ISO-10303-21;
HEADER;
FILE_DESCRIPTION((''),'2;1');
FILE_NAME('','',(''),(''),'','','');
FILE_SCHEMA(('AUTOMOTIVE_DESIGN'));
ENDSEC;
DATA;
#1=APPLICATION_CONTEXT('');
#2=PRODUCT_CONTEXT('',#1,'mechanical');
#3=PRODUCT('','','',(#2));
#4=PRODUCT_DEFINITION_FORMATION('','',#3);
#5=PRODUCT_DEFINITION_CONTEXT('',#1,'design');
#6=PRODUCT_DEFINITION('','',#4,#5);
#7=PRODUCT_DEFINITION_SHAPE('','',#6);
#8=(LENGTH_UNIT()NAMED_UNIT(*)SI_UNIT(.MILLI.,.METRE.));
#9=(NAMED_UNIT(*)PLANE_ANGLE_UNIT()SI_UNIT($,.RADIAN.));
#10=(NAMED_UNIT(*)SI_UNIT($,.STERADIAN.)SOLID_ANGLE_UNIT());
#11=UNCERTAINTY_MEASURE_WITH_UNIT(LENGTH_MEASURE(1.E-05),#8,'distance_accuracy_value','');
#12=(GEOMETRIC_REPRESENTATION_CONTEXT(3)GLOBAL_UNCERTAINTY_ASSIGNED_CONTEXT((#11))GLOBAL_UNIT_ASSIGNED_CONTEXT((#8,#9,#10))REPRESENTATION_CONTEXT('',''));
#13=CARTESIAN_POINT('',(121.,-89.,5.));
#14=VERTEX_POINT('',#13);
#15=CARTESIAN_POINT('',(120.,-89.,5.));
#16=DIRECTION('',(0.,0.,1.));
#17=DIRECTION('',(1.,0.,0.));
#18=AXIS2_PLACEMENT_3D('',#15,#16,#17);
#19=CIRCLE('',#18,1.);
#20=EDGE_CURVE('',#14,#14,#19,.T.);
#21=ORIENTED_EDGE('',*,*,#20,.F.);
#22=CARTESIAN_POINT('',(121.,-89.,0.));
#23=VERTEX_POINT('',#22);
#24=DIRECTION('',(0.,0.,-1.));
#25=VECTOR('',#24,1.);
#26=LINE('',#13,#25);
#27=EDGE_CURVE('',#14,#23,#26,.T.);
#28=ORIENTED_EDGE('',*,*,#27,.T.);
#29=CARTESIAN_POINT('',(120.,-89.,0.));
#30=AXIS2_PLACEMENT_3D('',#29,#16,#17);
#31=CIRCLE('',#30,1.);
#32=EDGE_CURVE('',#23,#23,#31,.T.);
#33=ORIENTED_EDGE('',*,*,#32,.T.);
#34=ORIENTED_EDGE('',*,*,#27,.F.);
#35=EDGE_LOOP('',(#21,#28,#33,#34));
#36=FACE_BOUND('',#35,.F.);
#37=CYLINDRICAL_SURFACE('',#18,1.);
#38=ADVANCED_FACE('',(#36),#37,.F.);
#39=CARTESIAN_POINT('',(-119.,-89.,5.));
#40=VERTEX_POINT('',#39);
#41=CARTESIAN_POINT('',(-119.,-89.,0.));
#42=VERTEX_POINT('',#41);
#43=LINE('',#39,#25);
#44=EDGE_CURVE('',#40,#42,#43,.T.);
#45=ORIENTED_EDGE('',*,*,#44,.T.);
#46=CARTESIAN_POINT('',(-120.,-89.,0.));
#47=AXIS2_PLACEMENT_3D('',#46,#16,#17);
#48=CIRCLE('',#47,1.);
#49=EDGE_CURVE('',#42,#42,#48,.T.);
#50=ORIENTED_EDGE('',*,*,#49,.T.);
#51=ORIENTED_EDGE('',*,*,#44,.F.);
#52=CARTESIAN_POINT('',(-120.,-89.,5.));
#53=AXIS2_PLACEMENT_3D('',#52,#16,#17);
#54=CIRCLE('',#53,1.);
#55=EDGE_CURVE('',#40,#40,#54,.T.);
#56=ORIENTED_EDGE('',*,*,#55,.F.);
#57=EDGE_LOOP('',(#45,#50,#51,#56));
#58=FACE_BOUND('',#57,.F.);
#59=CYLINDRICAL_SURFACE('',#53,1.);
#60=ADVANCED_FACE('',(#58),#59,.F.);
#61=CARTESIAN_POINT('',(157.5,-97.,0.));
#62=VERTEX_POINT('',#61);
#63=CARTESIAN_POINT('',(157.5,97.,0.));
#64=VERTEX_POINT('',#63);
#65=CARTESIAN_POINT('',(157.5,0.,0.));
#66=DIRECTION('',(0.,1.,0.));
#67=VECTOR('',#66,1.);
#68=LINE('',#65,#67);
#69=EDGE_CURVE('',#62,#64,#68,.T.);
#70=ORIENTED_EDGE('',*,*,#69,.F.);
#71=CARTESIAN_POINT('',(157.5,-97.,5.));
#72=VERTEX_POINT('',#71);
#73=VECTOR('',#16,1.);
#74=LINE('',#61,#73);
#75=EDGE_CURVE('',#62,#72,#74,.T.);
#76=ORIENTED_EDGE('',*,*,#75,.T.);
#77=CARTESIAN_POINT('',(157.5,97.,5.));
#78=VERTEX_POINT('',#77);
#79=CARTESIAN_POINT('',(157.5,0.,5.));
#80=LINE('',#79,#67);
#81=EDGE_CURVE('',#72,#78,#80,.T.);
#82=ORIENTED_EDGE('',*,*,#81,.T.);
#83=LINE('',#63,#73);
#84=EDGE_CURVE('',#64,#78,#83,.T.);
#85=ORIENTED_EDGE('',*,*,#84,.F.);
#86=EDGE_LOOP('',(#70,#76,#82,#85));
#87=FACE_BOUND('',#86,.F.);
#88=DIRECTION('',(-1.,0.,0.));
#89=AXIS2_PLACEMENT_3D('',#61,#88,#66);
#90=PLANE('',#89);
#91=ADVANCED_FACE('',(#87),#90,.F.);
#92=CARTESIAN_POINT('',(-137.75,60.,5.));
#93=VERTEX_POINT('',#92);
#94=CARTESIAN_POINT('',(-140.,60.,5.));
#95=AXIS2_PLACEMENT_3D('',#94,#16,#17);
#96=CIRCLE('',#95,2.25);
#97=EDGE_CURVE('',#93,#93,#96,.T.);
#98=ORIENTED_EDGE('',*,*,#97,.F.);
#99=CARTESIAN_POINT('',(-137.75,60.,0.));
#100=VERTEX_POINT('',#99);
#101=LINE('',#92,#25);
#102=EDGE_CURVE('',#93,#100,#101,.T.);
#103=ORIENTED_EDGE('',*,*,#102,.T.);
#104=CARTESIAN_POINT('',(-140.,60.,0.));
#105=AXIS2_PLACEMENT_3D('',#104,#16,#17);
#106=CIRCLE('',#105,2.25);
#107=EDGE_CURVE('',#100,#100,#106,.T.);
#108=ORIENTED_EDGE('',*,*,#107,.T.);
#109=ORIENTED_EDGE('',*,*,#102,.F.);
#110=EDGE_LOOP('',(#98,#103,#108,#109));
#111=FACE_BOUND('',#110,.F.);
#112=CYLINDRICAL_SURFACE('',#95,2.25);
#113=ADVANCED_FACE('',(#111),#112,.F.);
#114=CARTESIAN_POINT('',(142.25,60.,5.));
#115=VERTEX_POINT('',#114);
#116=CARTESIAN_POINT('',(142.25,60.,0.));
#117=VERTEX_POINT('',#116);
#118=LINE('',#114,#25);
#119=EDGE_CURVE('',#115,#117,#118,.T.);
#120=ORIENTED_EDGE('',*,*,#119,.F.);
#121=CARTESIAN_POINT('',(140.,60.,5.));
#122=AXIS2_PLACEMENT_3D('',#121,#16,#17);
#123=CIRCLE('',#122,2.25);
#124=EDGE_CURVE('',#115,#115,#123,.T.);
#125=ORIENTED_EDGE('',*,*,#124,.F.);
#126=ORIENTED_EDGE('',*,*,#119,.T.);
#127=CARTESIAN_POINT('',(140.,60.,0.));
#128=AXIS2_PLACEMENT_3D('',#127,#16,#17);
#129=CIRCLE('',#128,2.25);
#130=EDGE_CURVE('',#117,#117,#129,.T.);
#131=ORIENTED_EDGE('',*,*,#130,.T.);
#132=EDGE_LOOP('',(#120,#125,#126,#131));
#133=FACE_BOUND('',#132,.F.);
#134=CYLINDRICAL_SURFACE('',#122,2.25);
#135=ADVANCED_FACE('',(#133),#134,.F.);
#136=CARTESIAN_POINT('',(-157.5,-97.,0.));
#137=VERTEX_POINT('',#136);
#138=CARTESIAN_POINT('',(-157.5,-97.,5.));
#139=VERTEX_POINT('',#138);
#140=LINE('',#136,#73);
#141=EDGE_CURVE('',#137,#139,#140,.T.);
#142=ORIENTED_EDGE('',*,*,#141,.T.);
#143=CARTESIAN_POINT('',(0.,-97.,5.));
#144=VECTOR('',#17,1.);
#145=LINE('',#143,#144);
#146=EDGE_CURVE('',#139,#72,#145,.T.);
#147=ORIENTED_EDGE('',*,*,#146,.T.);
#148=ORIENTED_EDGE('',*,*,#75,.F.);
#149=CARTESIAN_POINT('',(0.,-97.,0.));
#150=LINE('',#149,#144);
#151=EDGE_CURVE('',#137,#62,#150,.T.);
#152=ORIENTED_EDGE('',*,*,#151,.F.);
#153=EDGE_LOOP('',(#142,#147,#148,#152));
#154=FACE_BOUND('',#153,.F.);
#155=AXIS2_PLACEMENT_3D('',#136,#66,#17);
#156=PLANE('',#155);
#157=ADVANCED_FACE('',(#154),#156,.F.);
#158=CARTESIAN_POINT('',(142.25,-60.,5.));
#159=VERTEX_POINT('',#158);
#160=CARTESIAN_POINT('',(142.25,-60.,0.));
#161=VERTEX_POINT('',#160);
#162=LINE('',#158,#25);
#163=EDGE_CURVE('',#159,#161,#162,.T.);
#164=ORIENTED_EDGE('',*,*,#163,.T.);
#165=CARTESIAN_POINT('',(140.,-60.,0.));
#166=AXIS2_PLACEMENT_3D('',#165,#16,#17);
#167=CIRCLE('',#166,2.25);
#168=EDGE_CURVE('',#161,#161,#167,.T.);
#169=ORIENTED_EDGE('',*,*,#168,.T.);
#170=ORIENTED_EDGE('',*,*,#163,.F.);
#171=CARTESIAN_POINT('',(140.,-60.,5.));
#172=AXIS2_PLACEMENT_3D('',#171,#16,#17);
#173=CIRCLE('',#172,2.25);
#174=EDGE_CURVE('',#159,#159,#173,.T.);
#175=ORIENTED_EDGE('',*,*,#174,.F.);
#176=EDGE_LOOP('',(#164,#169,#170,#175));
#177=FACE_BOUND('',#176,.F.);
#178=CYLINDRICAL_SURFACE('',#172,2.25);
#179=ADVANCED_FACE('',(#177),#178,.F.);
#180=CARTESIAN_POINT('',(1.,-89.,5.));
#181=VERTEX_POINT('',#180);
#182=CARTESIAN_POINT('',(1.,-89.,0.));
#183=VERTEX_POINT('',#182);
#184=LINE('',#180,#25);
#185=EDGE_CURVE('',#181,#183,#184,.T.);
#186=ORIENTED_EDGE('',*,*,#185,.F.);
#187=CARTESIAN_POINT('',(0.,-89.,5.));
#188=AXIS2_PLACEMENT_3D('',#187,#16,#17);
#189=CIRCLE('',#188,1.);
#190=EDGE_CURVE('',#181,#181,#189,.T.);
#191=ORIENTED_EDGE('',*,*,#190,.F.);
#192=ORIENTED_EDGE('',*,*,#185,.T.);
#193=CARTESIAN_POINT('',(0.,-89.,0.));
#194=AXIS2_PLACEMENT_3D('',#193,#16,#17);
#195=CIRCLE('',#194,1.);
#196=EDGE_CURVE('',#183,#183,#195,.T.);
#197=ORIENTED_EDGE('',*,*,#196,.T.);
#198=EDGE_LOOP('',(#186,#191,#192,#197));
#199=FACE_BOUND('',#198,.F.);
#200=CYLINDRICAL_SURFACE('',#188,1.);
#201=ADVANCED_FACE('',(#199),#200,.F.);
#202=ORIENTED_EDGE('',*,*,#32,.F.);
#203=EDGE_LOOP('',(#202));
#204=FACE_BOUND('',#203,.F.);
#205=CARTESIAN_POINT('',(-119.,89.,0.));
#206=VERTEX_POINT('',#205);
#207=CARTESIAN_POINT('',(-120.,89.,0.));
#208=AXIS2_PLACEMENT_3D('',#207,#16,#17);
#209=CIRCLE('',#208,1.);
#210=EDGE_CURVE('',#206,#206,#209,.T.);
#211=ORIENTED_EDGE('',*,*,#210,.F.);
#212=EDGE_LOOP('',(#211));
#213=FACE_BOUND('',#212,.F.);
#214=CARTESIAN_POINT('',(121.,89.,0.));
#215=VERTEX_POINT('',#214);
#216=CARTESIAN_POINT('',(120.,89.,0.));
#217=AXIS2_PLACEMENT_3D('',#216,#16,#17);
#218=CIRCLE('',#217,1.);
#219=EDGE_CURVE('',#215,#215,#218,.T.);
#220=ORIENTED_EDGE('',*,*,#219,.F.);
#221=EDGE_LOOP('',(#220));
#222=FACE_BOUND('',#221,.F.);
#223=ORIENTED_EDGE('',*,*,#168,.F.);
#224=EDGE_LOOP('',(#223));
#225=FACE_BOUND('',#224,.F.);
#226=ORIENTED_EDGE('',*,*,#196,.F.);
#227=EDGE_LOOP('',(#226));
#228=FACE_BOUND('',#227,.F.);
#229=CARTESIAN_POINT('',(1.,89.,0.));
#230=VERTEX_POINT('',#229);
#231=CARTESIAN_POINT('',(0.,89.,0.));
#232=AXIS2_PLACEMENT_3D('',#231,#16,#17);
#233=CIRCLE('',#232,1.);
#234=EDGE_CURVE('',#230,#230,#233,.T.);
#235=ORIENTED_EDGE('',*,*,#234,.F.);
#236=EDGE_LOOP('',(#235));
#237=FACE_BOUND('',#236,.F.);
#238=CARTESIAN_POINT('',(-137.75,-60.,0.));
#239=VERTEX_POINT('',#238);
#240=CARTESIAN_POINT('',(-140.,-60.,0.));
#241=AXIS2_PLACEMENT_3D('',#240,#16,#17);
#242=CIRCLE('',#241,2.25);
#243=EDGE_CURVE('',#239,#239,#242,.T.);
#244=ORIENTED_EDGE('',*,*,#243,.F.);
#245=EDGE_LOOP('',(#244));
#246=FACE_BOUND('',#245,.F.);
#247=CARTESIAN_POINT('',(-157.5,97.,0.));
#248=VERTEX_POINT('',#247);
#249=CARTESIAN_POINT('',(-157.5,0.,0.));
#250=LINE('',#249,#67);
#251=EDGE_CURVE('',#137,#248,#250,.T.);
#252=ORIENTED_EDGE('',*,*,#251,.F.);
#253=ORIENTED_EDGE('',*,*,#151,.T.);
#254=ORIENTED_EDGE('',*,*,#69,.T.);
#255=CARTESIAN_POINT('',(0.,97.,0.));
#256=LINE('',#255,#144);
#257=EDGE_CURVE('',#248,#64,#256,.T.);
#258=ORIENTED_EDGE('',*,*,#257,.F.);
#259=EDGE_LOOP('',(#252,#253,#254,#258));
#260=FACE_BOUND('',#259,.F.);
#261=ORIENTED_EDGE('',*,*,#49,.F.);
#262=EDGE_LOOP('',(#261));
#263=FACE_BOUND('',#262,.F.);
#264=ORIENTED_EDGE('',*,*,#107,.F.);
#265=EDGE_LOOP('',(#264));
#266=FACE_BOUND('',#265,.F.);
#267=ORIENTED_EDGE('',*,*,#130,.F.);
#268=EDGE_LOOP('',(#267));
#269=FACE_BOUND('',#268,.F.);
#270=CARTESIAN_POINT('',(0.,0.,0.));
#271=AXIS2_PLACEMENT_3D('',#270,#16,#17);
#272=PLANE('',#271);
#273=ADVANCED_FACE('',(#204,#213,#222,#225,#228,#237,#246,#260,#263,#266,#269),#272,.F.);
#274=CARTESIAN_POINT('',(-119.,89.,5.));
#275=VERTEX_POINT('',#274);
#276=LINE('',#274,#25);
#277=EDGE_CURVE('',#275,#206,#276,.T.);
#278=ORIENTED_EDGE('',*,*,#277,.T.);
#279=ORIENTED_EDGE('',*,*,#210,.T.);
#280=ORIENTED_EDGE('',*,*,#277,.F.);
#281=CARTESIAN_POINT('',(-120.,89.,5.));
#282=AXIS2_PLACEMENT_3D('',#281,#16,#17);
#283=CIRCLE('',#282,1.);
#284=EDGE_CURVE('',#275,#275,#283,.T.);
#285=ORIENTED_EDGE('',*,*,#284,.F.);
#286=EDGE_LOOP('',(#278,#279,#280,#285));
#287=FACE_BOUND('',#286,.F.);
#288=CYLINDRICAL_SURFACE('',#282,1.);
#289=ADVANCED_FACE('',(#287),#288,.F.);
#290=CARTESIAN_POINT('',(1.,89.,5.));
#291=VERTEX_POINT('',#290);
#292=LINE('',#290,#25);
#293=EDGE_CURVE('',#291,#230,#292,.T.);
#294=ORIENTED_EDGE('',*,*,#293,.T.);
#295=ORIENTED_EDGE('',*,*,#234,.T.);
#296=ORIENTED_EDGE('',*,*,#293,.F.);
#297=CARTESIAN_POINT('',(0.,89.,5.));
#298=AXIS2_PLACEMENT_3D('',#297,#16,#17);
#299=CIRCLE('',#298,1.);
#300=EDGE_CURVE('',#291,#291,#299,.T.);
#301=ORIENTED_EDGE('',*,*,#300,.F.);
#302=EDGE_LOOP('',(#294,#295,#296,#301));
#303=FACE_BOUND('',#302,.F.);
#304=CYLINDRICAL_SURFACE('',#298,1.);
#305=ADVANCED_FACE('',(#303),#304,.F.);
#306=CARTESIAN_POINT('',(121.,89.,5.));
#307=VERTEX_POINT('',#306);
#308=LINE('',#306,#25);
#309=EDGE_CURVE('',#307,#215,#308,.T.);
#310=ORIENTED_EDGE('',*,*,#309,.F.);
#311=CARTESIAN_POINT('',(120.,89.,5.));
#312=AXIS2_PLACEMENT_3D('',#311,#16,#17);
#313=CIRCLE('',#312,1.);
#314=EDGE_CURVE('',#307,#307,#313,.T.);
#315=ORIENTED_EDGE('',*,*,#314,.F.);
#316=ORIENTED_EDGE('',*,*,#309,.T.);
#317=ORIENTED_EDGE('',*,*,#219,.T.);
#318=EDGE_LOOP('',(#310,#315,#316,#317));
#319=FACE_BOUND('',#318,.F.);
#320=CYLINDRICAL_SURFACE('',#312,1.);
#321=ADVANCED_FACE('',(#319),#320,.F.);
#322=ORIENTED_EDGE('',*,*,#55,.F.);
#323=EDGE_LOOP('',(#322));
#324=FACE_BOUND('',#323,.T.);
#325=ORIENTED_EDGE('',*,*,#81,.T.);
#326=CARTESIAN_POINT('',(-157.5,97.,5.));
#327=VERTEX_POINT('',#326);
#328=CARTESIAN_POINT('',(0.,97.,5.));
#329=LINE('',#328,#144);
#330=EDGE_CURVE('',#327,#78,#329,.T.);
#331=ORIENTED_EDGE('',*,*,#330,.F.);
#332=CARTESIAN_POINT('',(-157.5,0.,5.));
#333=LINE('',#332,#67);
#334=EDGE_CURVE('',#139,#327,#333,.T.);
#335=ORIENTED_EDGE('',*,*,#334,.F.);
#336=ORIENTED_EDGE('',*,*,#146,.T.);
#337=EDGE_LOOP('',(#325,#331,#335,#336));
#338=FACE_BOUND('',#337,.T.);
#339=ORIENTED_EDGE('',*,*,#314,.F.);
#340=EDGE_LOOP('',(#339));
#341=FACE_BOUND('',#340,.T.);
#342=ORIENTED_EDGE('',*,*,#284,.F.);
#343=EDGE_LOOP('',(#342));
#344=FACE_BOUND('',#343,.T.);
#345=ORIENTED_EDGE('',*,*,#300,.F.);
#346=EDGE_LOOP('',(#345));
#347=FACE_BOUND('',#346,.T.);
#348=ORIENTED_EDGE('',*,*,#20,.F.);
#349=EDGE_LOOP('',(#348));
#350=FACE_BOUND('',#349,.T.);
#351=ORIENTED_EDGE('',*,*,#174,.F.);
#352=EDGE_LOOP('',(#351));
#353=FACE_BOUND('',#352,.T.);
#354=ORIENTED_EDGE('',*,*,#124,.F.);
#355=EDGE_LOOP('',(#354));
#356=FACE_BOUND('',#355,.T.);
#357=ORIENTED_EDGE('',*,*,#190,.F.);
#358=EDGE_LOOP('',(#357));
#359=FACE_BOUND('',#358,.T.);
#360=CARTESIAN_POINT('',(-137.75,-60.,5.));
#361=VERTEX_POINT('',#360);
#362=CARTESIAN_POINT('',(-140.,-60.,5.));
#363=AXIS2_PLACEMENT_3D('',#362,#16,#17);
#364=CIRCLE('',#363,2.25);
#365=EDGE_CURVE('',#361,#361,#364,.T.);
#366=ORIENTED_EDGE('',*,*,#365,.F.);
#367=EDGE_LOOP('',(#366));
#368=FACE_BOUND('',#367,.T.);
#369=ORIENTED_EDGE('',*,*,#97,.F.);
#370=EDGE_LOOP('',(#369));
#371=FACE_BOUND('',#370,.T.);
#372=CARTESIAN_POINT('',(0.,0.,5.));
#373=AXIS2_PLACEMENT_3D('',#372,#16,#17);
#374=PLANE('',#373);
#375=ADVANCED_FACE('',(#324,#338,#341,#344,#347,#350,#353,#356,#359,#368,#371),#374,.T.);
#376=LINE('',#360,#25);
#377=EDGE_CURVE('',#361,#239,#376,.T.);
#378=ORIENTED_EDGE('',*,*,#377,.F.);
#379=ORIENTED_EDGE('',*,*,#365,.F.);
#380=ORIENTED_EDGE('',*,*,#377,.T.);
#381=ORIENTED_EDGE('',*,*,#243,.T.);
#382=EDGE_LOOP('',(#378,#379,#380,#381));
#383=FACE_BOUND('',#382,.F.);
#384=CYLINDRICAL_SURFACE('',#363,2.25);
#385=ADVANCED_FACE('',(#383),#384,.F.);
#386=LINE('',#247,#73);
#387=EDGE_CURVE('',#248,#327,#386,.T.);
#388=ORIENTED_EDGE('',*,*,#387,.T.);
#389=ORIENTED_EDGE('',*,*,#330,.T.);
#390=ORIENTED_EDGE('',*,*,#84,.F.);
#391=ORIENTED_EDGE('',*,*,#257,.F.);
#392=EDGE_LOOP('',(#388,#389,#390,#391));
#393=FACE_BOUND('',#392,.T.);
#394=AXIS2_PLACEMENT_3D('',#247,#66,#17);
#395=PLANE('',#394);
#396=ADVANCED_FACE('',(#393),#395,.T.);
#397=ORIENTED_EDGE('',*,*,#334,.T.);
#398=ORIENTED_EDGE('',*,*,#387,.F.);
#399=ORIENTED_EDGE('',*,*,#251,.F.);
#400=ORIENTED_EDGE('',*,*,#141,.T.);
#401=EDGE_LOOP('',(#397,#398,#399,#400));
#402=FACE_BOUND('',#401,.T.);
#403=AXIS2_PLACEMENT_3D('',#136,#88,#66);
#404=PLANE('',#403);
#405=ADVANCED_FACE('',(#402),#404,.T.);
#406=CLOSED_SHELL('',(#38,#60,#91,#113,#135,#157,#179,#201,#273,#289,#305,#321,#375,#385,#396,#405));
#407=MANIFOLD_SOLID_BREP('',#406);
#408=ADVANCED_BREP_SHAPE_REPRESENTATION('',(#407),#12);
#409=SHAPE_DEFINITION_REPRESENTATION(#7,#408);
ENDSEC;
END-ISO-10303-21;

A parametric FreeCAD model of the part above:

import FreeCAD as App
import Part
import Sketcher
Q = App.Units.Quantity

doc = App.newDocument("Part")
body = doc.addObject("PartDesign::Body", "Body")

# Sketch on XY plane
sketch1 = body.newObject("Sketcher::SketchObject", "Sketch")
sketch1.AttachmentSupport = (doc.getObject("XY_Plane"), [""])
sketch1.MapMode = "FlatFace"
sketch1.addGeometry(Part.LineSegment(App.Vector(-158, 97, 0), App.Vector(-158, -97, 0)), False)
sketch1.addGeometry(Part.LineSegment(App.Vector(-158, -97, 0), App.Vector(158, -97, 0)), False)
sketch1.addGeometry(Part.LineSegment(App.Vector(158, -97, 0), App.Vector(158, 97, 0)), False)
sketch1.addGeometry(Part.LineSegment(App.Vector(158, 97, 0), App.Vector(-158, 97, 0)), False)
sketch1.addConstraint(Sketcher.Constraint("Coincident", 0, 2, 1, 1))
sketch1.addConstraint(Sketcher.Constraint("Coincident", 1, 2, 2, 1))
sketch1.addConstraint(Sketcher.Constraint("Coincident", 2, 2, 3, 1))
sketch1.addConstraint(Sketcher.Constraint("Coincident", 3, 2, 0, 1))
sketch1.addConstraint(Sketcher.Constraint("Vertical", 0))
sketch1.addConstraint(Sketcher.Constraint("Horizontal", 1))
sketch1.addConstraint(Sketcher.Constraint("Vertical", 2))
sketch1.addConstraint(Sketcher.Constraint("Horizontal", 3))
sketch1.addConstraint(Sketcher.Constraint("Symmetric", 0, 2, 2, 2, -1, 1))
sketch1.addConstraint(Sketcher.Constraint("DistanceX", 1, 1, 1, 2, Q("315 mm")))
sketch1.addConstraint(Sketcher.Constraint("DistanceY", 0, 2, 0, 1, Q("194 mm")))
pad1 = body.newObject("PartDesign::Pad", "Pad")
pad1.Profile = sketch1
pad1.Length = 5

# Sketch on XY plane
sketch2 = body.newObject("Sketcher::SketchObject", "Sketch001")
sketch2.AttachmentSupport = (doc.getObject("XY_Plane"), [""])
sketch2.MapMode = "FlatFace"
sketch2.AttachmentOffset = App.Placement(App.Vector(0, 0, 5), App.Rotation())
sketch2.addGeometry(Part.Circle(App.Vector(-120, 89, 0), App.Vector(0, 0, 1), 1), False)
sketch2.addGeometry(Part.Circle(App.Vector(0, 89, 0), App.Vector(0, 0, 1), 1), False)
sketch2.addGeometry(Part.Circle(App.Vector(120, 89, 0), App.Vector(0, 0, 1), 1), False)
sketch2.addGeometry(Part.Circle(App.Vector(-120, -89, 0), App.Vector(0, 0, 1), 1), False)
sketch2.addGeometry(Part.Circle(App.Vector(0, -89, 0), App.Vector(0, 0, 1), 1), False)
sketch2.addGeometry(Part.Circle(App.Vector(120, -89, 0), App.Vector(0, 0, 1), 1), False)
sketch2.addConstraint(Sketcher.Constraint("Equal", 0, 1))
sketch2.addConstraint(Sketcher.Constraint("Equal", 1, 2))
sketch2.addConstraint(Sketcher.Constraint("Equal", 2, 3))
sketch2.addConstraint(Sketcher.Constraint("Equal", 3, 4))
sketch2.addConstraint(Sketcher.Constraint("Equal", 4, 5))
sketch2.addConstraint(Sketcher.Constraint("Symmetric", 2, 3, 3, 3, -1, 1))
sketch2.addConstraint(Sketcher.Constraint("Symmetric", 1, 3, 4, 3, -1, 1))
sketch2.addConstraint(Sketcher.Constraint("Symmetric", 0, 3, 5, 3, -1, 1))
sketch2.addConstraint(Sketcher.Constraint("Symmetric", 0, 3, 2, 3, -2))
sketch2.addConstraint(Sketcher.Constraint("PointOnObject", 1, 3, -2))
sketch2.addConstraint(Sketcher.Constraint("Horizontal", 0, 3, 1, 3))
sketch2.addConstraint(Sketcher.Constraint("Diameter", 0, Q("2 mm")))
sketch2.addConstraint(Sketcher.Constraint("DistanceX", 0, 3, -1, 1, Q("120 mm")))
sketch2.addConstraint(Sketcher.Constraint("DistanceY", -1, 1, 0, 3, Q("89 mm")))
pocket1 = body.newObject("PartDesign::Pocket", "Pocket")
pocket1.Profile = sketch2
pocket1.Type = "ThroughAll"

# Sketch on XY plane
sketch3 = body.newObject("Sketcher::SketchObject", "Sketch002")
sketch3.AttachmentSupport = (doc.getObject("XY_Plane"), [""])
sketch3.MapMode = "FlatFace"
sketch3.AttachmentOffset = App.Placement(App.Vector(0, 0, 5), App.Rotation())
sketch3.addGeometry(Part.Circle(App.Vector(-140, 60, 0), App.Vector(0, 0, 1), 2.2), False)
sketch3.addGeometry(Part.Circle(App.Vector(140, 60, 0), App.Vector(0, 0, 1), 2.2), False)
sketch3.addGeometry(Part.Circle(App.Vector(-140, -60, 0), App.Vector(0, 0, 1), 2.2), False)
sketch3.addGeometry(Part.Circle(App.Vector(140, -60, 0), App.Vector(0, 0, 1), 2.2), False)
sketch3.addConstraint(Sketcher.Constraint("Equal", 0, 1))
sketch3.addConstraint(Sketcher.Constraint("Equal", 1, 2))
sketch3.addConstraint(Sketcher.Constraint("Equal", 2, 3))
sketch3.addConstraint(Sketcher.Constraint("Symmetric", 1, 3, 2, 3, -1, 1))
sketch3.addConstraint(Sketcher.Constraint("Symmetric", 0, 3, 3, 3, -1, 1))
sketch3.addConstraint(Sketcher.Constraint("Symmetric", 0, 3, 1, 3, -2))
sketch3.addConstraint(Sketcher.Constraint("Diameter", 0, Q("4.5 mm")))
sketch3.addConstraint(Sketcher.Constraint("DistanceX", 0, 3, -1, 1, Q("140 mm")))
sketch3.addConstraint(Sketcher.Constraint("DistanceY", -1, 1, 0, 3, Q("60 mm")))
pocket2 = body.newObject("PartDesign::Pocket", "Pocket001")
pocket2.Profile = sketch3
pocket2.Type = "ThroughAll"

doc.recompute()
